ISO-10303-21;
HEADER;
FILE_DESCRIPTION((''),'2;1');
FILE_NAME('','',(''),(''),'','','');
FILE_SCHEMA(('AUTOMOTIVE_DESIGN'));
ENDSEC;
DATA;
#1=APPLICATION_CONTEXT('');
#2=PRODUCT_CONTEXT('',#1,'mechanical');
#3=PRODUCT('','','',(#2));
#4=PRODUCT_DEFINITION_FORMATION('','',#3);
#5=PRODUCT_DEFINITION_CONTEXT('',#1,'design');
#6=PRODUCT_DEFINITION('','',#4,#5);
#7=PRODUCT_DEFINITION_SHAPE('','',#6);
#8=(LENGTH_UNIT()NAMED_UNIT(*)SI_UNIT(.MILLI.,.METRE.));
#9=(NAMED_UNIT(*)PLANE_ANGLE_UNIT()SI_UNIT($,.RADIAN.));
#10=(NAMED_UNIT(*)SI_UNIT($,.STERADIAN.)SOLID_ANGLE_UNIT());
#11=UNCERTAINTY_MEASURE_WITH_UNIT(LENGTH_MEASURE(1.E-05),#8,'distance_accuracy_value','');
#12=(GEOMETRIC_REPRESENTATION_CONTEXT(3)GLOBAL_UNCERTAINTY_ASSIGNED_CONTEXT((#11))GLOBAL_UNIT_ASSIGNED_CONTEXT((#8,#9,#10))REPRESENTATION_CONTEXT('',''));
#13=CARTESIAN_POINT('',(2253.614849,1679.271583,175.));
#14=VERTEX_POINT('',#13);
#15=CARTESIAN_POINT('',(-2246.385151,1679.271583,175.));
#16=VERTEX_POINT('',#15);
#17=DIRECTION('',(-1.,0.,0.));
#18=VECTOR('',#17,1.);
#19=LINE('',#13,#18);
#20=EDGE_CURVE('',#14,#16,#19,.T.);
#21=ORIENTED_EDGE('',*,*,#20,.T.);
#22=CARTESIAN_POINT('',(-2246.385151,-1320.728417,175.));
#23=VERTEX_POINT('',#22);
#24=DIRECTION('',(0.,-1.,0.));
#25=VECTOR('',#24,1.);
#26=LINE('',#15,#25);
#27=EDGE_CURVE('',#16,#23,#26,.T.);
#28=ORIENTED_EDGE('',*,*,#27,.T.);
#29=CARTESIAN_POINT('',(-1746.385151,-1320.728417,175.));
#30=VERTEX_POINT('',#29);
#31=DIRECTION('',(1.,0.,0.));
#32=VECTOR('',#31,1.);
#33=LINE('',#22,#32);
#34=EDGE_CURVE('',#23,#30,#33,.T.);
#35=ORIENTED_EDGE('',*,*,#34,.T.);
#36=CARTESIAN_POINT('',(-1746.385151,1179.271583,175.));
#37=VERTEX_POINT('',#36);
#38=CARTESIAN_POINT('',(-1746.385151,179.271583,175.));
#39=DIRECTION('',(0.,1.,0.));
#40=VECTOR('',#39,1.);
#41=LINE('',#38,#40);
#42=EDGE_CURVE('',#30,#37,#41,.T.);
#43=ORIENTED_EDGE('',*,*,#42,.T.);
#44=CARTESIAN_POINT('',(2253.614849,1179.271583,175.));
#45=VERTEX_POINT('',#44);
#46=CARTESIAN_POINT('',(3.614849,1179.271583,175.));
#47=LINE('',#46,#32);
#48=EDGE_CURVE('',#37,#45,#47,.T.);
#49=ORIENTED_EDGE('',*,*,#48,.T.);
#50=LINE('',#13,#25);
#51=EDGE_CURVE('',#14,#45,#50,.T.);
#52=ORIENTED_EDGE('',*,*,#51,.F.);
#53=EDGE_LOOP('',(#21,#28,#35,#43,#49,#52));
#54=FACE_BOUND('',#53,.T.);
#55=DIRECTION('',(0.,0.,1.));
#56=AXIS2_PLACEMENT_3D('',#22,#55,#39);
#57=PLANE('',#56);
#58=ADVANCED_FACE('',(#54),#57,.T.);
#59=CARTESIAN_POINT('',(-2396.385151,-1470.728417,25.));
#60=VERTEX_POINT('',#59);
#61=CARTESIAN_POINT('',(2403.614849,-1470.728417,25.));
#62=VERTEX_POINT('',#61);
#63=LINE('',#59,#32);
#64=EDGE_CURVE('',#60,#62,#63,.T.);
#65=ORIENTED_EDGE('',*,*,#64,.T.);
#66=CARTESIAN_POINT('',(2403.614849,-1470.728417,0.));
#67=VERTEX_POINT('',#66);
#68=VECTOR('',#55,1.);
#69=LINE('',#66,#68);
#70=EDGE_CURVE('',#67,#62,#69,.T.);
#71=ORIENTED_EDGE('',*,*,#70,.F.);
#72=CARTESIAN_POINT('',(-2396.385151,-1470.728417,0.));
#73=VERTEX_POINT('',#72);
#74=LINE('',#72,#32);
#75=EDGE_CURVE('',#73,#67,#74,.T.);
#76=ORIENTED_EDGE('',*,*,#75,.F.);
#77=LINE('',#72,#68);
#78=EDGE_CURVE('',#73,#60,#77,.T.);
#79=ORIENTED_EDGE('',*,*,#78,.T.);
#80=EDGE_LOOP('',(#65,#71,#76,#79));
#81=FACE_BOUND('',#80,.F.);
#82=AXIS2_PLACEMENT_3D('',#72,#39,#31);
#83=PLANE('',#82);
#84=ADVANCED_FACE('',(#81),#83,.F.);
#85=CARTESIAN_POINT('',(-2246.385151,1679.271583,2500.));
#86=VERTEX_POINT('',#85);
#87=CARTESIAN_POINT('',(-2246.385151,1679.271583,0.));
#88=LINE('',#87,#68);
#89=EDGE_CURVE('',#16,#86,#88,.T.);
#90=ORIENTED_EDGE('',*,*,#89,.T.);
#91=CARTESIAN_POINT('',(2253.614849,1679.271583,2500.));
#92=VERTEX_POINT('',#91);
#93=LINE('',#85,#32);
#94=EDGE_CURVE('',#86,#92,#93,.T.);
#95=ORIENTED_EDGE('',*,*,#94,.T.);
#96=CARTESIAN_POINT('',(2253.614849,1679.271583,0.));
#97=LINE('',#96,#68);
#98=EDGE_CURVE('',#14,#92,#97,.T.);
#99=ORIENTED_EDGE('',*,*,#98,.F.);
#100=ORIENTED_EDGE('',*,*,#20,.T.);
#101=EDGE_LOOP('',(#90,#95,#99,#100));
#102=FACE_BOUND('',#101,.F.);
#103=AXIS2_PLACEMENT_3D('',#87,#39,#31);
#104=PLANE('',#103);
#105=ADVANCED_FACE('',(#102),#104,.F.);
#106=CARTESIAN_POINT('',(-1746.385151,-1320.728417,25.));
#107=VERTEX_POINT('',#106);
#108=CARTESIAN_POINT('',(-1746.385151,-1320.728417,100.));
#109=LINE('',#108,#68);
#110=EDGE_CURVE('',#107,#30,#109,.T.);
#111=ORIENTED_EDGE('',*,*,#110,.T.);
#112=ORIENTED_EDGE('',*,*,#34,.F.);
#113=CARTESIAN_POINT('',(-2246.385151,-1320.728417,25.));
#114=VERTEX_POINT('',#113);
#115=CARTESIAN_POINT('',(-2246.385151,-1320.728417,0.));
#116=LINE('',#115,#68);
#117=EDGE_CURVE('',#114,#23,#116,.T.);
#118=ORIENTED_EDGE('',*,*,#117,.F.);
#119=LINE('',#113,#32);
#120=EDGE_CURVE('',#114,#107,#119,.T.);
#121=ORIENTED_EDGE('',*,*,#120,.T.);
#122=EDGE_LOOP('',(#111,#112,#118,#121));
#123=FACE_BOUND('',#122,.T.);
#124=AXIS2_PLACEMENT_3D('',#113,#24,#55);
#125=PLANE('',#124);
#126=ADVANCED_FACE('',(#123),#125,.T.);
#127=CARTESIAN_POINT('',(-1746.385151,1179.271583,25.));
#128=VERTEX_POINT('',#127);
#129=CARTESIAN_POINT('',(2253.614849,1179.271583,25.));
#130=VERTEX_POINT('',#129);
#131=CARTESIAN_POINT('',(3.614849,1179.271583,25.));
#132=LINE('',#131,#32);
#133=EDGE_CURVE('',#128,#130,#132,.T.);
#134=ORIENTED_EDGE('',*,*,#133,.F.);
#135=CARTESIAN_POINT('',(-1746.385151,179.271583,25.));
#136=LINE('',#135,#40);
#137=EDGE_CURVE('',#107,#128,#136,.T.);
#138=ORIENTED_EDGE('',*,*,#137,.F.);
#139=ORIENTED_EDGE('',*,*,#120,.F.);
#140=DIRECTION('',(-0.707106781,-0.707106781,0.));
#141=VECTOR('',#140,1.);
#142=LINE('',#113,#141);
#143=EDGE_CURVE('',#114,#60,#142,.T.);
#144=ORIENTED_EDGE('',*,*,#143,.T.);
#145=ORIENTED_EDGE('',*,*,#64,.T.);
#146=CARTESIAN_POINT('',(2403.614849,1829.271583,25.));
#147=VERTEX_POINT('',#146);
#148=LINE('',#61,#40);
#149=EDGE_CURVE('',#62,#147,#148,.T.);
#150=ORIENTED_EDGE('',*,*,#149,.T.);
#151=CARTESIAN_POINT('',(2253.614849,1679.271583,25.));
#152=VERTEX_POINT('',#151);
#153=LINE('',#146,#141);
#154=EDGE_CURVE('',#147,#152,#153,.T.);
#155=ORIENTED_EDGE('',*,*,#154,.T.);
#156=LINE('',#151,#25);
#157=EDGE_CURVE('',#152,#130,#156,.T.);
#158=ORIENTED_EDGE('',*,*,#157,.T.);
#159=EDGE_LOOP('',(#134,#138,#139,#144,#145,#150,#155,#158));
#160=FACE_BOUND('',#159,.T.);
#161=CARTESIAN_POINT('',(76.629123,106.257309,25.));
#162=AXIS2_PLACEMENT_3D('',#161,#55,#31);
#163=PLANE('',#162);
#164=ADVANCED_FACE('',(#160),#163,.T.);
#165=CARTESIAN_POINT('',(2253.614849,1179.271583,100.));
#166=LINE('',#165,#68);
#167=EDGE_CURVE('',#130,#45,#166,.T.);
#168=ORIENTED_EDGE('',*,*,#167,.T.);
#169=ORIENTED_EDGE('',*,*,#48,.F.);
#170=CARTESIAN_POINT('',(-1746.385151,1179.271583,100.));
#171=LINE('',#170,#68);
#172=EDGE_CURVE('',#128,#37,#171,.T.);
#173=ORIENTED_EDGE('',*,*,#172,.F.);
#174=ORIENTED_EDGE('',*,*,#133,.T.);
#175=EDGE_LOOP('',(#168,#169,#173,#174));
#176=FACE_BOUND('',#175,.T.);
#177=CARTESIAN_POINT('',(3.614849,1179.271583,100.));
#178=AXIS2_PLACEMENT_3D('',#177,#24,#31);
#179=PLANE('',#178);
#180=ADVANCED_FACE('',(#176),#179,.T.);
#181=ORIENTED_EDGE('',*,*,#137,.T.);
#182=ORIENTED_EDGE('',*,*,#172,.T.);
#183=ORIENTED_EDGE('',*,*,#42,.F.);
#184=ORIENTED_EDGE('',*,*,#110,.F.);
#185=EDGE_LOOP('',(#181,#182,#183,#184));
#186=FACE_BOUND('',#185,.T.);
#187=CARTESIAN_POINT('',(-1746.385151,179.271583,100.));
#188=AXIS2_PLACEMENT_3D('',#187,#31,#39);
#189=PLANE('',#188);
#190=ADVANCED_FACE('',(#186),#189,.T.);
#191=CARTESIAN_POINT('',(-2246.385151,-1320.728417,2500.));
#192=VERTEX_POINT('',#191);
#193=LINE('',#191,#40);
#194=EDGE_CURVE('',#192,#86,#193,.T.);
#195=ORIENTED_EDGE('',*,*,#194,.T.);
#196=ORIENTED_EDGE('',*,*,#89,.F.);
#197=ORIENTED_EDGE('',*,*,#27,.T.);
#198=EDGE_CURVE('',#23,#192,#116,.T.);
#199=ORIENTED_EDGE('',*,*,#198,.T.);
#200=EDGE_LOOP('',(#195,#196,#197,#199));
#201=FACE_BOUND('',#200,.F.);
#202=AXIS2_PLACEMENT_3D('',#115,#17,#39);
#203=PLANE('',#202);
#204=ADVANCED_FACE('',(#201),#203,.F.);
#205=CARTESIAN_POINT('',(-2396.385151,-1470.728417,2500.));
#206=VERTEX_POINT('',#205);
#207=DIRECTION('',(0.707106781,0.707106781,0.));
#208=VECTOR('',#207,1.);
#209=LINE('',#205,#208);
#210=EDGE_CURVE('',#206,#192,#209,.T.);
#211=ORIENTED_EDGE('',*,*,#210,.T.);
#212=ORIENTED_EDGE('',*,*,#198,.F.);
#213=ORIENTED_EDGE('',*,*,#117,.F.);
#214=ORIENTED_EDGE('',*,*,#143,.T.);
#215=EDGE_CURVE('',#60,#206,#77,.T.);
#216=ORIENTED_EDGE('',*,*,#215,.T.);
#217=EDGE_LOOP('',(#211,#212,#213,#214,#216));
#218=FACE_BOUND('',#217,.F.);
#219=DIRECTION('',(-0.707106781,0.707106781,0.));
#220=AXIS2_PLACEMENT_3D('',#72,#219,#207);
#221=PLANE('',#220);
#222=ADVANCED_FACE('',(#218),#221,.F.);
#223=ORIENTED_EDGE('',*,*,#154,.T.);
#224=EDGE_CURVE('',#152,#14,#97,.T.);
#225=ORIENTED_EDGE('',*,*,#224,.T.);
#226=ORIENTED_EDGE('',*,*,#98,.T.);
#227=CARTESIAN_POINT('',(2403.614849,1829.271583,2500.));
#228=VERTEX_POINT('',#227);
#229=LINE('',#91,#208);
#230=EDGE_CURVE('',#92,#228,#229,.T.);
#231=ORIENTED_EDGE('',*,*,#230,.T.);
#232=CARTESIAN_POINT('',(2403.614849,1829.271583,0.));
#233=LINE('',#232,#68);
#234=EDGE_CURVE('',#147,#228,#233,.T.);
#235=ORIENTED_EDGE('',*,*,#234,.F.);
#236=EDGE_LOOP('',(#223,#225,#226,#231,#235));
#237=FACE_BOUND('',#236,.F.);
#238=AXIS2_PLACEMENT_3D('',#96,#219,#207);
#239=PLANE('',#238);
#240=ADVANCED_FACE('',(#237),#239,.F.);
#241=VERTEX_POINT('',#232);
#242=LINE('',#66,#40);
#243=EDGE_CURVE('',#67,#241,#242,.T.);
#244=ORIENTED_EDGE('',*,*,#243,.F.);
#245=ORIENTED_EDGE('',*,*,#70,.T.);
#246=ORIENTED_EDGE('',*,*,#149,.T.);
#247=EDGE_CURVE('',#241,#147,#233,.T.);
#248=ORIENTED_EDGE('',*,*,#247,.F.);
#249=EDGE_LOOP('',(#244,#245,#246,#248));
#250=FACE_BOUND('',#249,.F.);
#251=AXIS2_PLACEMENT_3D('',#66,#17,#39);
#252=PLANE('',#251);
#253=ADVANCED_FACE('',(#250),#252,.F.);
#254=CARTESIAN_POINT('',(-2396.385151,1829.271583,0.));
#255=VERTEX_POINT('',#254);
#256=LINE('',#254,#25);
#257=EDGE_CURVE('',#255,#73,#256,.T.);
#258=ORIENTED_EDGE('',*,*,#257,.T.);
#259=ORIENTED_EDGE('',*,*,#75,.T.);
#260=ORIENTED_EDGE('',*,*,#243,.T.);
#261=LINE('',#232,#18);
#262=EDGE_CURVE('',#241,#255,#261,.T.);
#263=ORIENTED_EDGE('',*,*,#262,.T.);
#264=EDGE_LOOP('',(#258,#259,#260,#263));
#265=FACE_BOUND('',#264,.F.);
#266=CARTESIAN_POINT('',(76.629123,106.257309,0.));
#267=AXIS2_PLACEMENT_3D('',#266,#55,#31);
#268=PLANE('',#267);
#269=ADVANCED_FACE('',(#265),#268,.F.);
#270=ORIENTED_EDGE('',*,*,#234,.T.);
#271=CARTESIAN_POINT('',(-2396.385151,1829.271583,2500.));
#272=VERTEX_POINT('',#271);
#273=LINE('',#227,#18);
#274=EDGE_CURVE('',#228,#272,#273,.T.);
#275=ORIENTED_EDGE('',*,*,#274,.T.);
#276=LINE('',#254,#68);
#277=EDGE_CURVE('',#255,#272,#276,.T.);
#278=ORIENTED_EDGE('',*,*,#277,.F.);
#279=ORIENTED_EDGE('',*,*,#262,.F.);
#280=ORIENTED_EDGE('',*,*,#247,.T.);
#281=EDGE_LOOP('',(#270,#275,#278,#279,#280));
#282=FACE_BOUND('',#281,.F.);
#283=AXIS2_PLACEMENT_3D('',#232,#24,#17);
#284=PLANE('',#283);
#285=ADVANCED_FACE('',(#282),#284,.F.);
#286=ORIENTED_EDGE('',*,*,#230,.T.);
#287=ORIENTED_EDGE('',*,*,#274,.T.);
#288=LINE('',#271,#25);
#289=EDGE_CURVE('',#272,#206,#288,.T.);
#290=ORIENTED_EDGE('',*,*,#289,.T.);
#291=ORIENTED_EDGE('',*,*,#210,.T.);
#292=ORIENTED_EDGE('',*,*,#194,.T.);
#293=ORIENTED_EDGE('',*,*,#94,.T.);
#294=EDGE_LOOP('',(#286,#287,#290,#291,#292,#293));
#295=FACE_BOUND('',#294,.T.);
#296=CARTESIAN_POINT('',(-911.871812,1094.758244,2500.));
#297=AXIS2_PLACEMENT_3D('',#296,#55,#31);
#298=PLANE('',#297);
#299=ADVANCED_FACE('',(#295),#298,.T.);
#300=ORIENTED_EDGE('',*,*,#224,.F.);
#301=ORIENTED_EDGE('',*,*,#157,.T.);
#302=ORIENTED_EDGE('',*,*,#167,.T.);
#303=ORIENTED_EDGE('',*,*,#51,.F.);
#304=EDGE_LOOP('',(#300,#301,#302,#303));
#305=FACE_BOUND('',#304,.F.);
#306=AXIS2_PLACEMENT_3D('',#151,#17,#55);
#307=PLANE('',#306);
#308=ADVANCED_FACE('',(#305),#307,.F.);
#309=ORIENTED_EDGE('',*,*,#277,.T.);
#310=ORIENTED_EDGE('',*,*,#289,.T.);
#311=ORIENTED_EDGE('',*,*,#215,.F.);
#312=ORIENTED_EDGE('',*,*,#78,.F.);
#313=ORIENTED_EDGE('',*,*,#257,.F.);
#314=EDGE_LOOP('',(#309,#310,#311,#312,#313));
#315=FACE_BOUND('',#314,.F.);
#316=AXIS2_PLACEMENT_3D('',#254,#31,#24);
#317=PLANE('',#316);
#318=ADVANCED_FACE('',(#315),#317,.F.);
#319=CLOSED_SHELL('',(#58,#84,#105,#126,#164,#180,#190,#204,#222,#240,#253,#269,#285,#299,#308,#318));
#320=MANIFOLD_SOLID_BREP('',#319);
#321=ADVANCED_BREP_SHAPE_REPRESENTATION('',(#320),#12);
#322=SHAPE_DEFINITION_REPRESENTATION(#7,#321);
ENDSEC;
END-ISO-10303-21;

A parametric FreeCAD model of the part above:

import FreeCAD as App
import Part
import Sketcher
from FreeCAD import Vector


def add_polygon(sketch, points):
    """Adds a closed chain of lines whose ends are joined by coincident constraints."""
    first, n = sketch.GeometryCount, len(points)
    for a, b in zip(points, points[1:] + points[:1]):
        sketch.addGeometry(Part.LineSegment(App.Vector(*a, 0), App.Vector(*b, 0)), False)
    for i in range(n):
        sketch.addConstraint(Sketcher.Constraint("Coincident", first + i, 2, first + (i + 1) % n, 1))

doc = App.newDocument("Part")
body = doc.addObject("PartDesign::Body", "Body")

sketch1 = body.newObject("Sketcher::SketchObject", "Sketch")
sketch1.AttachmentSupport = (doc.getObject("XY_Plane"), [""])
sketch1.MapMode = "FlatFace"
add_polygon(sketch1, [(-2246, -1321), (-2246, 1679), (2254, 1679), (2404, 1829), (-2396, 1829), (-2396, -1471)])
sketch1.addConstraint(Sketcher.Constraint("Vertical", 0))
sketch1.addConstraint(Sketcher.Constraint("Horizontal", 1))
sketch1.addConstraint(Sketcher.Constraint("Horizontal", 3))
sketch1.addConstraint(Sketcher.Constraint("Vertical", 4))
sketch1.addConstraint(Sketcher.Constraint("Parallel", 2, 5))
sketch1.addConstraint(Sketcher.Constraint("Equal", 2, 5))
sketch1.addConstraint(Sketcher.Constraint("DistanceX", 1, 1, 1, 2, 4500.0))
sketch1.addConstraint(Sketcher.Constraint("DistanceX", 3, 2, 3, 1, 4800.0))
sketch1.addConstraint(Sketcher.Constraint("DistanceY", 0, 1, 0, 2, 3000.0))
sketch1.addConstraint(Sketcher.Constraint("DistanceY", 4, 2, 4, 1, 3300.0))
sketch1.addConstraint(Sketcher.Constraint("DistanceX", 0, 2, -1, 1, 2246.385151))
sketch1.addConstraint(Sketcher.Constraint("DistanceY", -1, 1, 0, 2, 1679.271583))
pad1 = body.newObject("PartDesign::Pad", "Pad")
pad1.Profile = sketch1
pad1.Length = 2500

sketch2 = body.newObject("Sketcher::SketchObject", "Sketch001")
sketch2.AttachmentSupport = (doc.getObject("XY_Plane"), [""])
sketch2.MapMode = "FlatFace"
add_polygon(sketch2, [(2254, 1679), (-2246, 1679), (-2246, -1321), (-2396, -1471), (2404, -1471), (2404, 1829)])
sketch2.addConstraint(Sketcher.Constraint("Horizontal", 0))
sketch2.addConstraint(Sketcher.Constraint("Vertical", 1))
sketch2.addConstraint(Sketcher.Constraint("Horizontal", 3))
sketch2.addConstraint(Sketcher.Constraint("Vertical", 4))
sketch2.addConstraint(Sketcher.Constraint("Parallel", 2, 5))
sketch2.addConstraint(Sketcher.Constraint("Equal", 2, 5))
sketch2.addConstraint(Sketcher.Constraint("DistanceX", 0, 2, 0, 1, 4500.0))
sketch2.addConstraint(Sketcher.Constraint("DistanceX", 3, 1, 3, 2, 4800.0))
sketch2.addConstraint(Sketcher.Constraint("DistanceY", 1, 2, 1, 1, 3000.0))
sketch2.addConstraint(Sketcher.Constraint("DistanceY", 4, 1, 4, 2, 3300.0))
sketch2.addConstraint(Sketcher.Constraint("DistanceX", 0, 2, -1, 1, 2246.385151))
sketch2.addConstraint(Sketcher.Constraint("DistanceY", -1, 1, 0, 2, 1679.271583))
pad2 = body.newObject("PartDesign::Pad", "Pad001")
pad2.Profile = sketch2
pad2.Length = 25

sketch3 = body.newObject("Sketcher::SketchObject", "Sketch002")
sketch3.AttachmentSupport = (doc.getObject("XZ_Plane"), [""])
sketch3.MapMode = "FlatFace"
sketch3.AttachmentOffset = App.Placement(Vector(0, 0, -1679.271583), App.Rotation())
add_polygon(sketch3, [(-2246, 175), (-2246, 25), (2254, 25), (2254, 175)])
sketch3.addConstraint(Sketcher.Constraint("Vertical", 0))
sketch3.addConstraint(Sketcher.Constraint("Horizontal", 1))
sketch3.addConstraint(Sketcher.Constraint("Vertical", 2))
sketch3.addConstraint(Sketcher.Constraint("Horizontal", 3))
sketch3.addConstraint(Sketcher.Constraint("DistanceX", 1, 1, 1, 2, 4500.0))
sketch3.addConstraint(Sketcher.Constraint("DistanceY", 0, 2, 0, 1, 150.0))
sketch3.addConstraint(Sketcher.Constraint("DistanceY", -1, 1, 0, 2, 25.0))
sketch3.addConstraint(Sketcher.Constraint("DistanceX", 0, 2, -1, 1, 2246.385151))
pad3 = body.newObject("PartDesign::Pad", "Pad002")
pad3.Profile = sketch3
pad3.Length = 500

sketch4 = body.newObject("Sketcher::SketchObject", "Sketch003")
sketch4.AttachmentSupport = (doc.getObject("YZ_Plane"), [""])
sketch4.MapMode = "FlatFace"
sketch4.AttachmentOffset = App.Placement(Vector(0, 0, -2246.385151), App.Rotation())
add_polygon(sketch4, [(-1321, 175), (-1321, 25), (1679, 25), (1679, 175)])
sketch4.addConstraint(Sketcher.Constraint("Vertical", 0))
sketch4.addConstraint(Sketcher.Constraint("Horizontal", 1))
sketch4.addConstraint(Sketcher.Constraint("Vertical", 2))
sketch4.addConstraint(Sketcher.Constraint("Horizontal", 3))
sketch4.addConstraint(Sketcher.Constraint("DistanceX", 1, 1, 1, 2, 3000.0))
sketch4.addConstraint(Sketcher.Constraint("DistanceY", 0, 2, 0, 1, 150.0))
sketch4.addConstraint(Sketcher.Constraint("DistanceY", -1, 1, 0, 2, 25.0))
sketch4.addConstraint(Sketcher.Constraint("DistanceX", 0, 2, -1, 1, 1320.728417))
pad4 = body.newObject("PartDesign::Pad", "Pad003")
pad4.Profile = sketch4
pad4.Length = 500

doc.recompute()
